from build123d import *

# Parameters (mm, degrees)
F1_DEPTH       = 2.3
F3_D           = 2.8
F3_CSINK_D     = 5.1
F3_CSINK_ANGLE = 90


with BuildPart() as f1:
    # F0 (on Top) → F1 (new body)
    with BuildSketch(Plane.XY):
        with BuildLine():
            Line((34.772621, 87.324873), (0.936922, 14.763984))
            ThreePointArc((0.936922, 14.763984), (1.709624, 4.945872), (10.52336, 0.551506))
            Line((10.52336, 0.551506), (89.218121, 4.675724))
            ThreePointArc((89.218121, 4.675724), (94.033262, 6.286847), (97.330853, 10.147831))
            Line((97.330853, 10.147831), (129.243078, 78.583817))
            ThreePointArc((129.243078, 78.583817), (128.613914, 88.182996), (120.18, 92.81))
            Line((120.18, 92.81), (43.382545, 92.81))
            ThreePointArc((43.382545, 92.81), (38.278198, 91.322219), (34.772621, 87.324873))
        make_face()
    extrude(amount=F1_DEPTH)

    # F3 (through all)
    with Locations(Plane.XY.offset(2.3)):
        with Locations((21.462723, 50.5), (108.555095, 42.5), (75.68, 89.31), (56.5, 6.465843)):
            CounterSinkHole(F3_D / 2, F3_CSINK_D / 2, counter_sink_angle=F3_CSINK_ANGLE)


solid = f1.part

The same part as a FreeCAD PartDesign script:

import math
import FreeCAD as App
import Part
import Sketcher
Q = App.Units.Quantity

doc = App.newDocument("Part")
body = doc.addObject("PartDesign::Body", "Body")

sketch1 = doc.addObject("Sketcher::SketchObject", "Sketch")
body.addObject(sketch1)
sketch1.AttachmentSupport = (doc.XY_Plane, [""])
sketch1.MapMode = "FlatFace"
sketch1.addGeometry([
    Part.LineSegment(App.Vector(35, 87, 0), App.Vector(1, 15, 0)),
    Part.ArcOfCircle(Part.Circle(App.Vector(10, 11, 0), App.Vector(0, 0, 1), 10), math.radians(155), math.radians(273)),
    Part.LineSegment(App.Vector(11, 1, 0), App.Vector(89, 5, 0)),
    Part.ArcOfCircle(Part.Circle(App.Vector(89, 14, 0), App.Vector(0, 0, 1), 9), math.radians(-87), math.radians(-25)),
    Part.LineSegment(App.Vector(97, 10, 0), App.Vector(129, 79, 0)),
    Part.ArcOfCircle(Part.Circle(App.Vector(120, 83, 0), App.Vector(0, 0, 1), 10), math.radians(-25), math.radians(90)),
    Part.LineSegment(App.Vector(120, 93, 0), App.Vector(43, 93, 0)),
    Part.ArcOfCircle(Part.Circle(App.Vector(43, 83, 0), App.Vector(0, 0, 1), 9), math.radians(90), math.radians(155)),
], False)
sketch1.addConstraint([
    Sketcher.Constraint("Tangent", 0, 2, 1, 1),
    Sketcher.Constraint("Tangent", 1, 2, 2, 1),
    Sketcher.Constraint("Tangent", 2, 2, 3, 1),
    Sketcher.Constraint("Tangent", 3, 2, 4, 1),
    Sketcher.Constraint("Tangent", 4, 2, 5, 1),
    Sketcher.Constraint("Tangent", 5, 2, 6, 1),
    Sketcher.Constraint("Tangent", 6, 2, 7, 1),
    Sketcher.Constraint("Tangent", 7, 2, 0, 1),
    Sketcher.Constraint("Horizontal", 6),
    Sketcher.Constraint("Equal", 1, 5),
    Sketcher.Constraint("Equal", 3, 7),
    Sketcher.Constraint("Parallel", 0, 4),
    Sketcher.Constraint("Radius", 1, Q("10 mm")),
    Sketcher.Constraint("Angle", 0, Q("-115.000001 deg")),
    Sketcher.Constraint("Angle", 2, Q("3 deg")),
    Sketcher.Constraint("DistanceX", -1, 1, 1, 3, Q("9.999999 mm")),
    Sketcher.Constraint("DistanceX", -1, 1, 5, 3, Q("120.179999 mm")),
    Sketcher.Constraint("DistanceY", -1, 1, 5, 3, Q("82.809999 mm")),
    Sketcher.Constraint("Radius", 3, Q("9.499996 mm")),
    Sketcher.Constraint("DistanceY", -1, 1, 1, 3, Q("10.537801 mm")),
])
pad1 = doc.addObject("PartDesign::Pad", "Pad")
body.addObject(pad1)
pad1.Profile = sketch1
pad1.Length = 2.3

sketch2 = doc.addObject("Sketcher::SketchObject", "Sketch001")
body.addObject(sketch2)
sketch2.AttachmentSupport = (doc.XY_Plane, [""])
sketch2.MapMode = "FlatFace"
sketch2.AttachmentOffset = App.Placement(App.Vector(0, 0, 2.3), App.Rotation())
sketch2.addGeometry([
    Part.Circle(App.Vector(21.5, 50.5, 0), App.Vector(0, 0, 1), 1.4),
    Part.Circle(App.Vector(108.6, 42.5, 0), App.Vector(0, 0, 1), 1.4),
    Part.Circle(App.Vector(75.7, 89.3, 0), App.Vector(0, 0, 1), 1.4),
    Part.Circle(App.Vector(56.5, 6.5, 0), App.Vector(0, 0, 1), 1.4),
], False)
sketch2.addConstraint([
    Sketcher.Constraint("Equal", 0, 1),
    Sketcher.Constraint("Equal", 1, 2),
    Sketcher.Constraint("Equal", 2, 3),
    Sketcher.Constraint("Diameter", 0, Q("2.8 mm")),
    Sketcher.Constraint("DistanceY", 1, 3, 0, 3, Q("8 mm")),
    Sketcher.Constraint("DistanceY", -1, 1, 0, 3, Q("50.5 mm")),
    Sketcher.Constraint("DistanceX", -1, 1, 3, 3, Q("56.5 mm")),
    Sketcher.Constraint("DistanceX", -1, 1, 2, 3, Q("75.68 mm")),
    Sketcher.Constraint("DistanceY", -1, 1, 2, 3, Q("89.31 mm")),
    Sketcher.Constraint("DistanceX", 0, 3, 1, 3, Q("87.092372 mm")),
    Sketcher.Constraint("DistanceX", -1, 1, 0, 3, Q("21.462723 mm")),
    Sketcher.Constraint("DistanceY", -1, 1, 3, 3, Q("6.465843 mm")),
])
doc.recompute()
hole = doc.addObject("PartDesign::Hole", "Hole")
body.addObject(hole)
hole.Profile = sketch2
hole.ThreadType = "None"
hole.Diameter = 2.8
hole.DepthType = "ThroughAll"
hole.HoleCutType = "Countersink"
hole.HoleCutDiameter = 5.1
hole.HoleCutCountersinkAngle = 90

doc.recompute()
